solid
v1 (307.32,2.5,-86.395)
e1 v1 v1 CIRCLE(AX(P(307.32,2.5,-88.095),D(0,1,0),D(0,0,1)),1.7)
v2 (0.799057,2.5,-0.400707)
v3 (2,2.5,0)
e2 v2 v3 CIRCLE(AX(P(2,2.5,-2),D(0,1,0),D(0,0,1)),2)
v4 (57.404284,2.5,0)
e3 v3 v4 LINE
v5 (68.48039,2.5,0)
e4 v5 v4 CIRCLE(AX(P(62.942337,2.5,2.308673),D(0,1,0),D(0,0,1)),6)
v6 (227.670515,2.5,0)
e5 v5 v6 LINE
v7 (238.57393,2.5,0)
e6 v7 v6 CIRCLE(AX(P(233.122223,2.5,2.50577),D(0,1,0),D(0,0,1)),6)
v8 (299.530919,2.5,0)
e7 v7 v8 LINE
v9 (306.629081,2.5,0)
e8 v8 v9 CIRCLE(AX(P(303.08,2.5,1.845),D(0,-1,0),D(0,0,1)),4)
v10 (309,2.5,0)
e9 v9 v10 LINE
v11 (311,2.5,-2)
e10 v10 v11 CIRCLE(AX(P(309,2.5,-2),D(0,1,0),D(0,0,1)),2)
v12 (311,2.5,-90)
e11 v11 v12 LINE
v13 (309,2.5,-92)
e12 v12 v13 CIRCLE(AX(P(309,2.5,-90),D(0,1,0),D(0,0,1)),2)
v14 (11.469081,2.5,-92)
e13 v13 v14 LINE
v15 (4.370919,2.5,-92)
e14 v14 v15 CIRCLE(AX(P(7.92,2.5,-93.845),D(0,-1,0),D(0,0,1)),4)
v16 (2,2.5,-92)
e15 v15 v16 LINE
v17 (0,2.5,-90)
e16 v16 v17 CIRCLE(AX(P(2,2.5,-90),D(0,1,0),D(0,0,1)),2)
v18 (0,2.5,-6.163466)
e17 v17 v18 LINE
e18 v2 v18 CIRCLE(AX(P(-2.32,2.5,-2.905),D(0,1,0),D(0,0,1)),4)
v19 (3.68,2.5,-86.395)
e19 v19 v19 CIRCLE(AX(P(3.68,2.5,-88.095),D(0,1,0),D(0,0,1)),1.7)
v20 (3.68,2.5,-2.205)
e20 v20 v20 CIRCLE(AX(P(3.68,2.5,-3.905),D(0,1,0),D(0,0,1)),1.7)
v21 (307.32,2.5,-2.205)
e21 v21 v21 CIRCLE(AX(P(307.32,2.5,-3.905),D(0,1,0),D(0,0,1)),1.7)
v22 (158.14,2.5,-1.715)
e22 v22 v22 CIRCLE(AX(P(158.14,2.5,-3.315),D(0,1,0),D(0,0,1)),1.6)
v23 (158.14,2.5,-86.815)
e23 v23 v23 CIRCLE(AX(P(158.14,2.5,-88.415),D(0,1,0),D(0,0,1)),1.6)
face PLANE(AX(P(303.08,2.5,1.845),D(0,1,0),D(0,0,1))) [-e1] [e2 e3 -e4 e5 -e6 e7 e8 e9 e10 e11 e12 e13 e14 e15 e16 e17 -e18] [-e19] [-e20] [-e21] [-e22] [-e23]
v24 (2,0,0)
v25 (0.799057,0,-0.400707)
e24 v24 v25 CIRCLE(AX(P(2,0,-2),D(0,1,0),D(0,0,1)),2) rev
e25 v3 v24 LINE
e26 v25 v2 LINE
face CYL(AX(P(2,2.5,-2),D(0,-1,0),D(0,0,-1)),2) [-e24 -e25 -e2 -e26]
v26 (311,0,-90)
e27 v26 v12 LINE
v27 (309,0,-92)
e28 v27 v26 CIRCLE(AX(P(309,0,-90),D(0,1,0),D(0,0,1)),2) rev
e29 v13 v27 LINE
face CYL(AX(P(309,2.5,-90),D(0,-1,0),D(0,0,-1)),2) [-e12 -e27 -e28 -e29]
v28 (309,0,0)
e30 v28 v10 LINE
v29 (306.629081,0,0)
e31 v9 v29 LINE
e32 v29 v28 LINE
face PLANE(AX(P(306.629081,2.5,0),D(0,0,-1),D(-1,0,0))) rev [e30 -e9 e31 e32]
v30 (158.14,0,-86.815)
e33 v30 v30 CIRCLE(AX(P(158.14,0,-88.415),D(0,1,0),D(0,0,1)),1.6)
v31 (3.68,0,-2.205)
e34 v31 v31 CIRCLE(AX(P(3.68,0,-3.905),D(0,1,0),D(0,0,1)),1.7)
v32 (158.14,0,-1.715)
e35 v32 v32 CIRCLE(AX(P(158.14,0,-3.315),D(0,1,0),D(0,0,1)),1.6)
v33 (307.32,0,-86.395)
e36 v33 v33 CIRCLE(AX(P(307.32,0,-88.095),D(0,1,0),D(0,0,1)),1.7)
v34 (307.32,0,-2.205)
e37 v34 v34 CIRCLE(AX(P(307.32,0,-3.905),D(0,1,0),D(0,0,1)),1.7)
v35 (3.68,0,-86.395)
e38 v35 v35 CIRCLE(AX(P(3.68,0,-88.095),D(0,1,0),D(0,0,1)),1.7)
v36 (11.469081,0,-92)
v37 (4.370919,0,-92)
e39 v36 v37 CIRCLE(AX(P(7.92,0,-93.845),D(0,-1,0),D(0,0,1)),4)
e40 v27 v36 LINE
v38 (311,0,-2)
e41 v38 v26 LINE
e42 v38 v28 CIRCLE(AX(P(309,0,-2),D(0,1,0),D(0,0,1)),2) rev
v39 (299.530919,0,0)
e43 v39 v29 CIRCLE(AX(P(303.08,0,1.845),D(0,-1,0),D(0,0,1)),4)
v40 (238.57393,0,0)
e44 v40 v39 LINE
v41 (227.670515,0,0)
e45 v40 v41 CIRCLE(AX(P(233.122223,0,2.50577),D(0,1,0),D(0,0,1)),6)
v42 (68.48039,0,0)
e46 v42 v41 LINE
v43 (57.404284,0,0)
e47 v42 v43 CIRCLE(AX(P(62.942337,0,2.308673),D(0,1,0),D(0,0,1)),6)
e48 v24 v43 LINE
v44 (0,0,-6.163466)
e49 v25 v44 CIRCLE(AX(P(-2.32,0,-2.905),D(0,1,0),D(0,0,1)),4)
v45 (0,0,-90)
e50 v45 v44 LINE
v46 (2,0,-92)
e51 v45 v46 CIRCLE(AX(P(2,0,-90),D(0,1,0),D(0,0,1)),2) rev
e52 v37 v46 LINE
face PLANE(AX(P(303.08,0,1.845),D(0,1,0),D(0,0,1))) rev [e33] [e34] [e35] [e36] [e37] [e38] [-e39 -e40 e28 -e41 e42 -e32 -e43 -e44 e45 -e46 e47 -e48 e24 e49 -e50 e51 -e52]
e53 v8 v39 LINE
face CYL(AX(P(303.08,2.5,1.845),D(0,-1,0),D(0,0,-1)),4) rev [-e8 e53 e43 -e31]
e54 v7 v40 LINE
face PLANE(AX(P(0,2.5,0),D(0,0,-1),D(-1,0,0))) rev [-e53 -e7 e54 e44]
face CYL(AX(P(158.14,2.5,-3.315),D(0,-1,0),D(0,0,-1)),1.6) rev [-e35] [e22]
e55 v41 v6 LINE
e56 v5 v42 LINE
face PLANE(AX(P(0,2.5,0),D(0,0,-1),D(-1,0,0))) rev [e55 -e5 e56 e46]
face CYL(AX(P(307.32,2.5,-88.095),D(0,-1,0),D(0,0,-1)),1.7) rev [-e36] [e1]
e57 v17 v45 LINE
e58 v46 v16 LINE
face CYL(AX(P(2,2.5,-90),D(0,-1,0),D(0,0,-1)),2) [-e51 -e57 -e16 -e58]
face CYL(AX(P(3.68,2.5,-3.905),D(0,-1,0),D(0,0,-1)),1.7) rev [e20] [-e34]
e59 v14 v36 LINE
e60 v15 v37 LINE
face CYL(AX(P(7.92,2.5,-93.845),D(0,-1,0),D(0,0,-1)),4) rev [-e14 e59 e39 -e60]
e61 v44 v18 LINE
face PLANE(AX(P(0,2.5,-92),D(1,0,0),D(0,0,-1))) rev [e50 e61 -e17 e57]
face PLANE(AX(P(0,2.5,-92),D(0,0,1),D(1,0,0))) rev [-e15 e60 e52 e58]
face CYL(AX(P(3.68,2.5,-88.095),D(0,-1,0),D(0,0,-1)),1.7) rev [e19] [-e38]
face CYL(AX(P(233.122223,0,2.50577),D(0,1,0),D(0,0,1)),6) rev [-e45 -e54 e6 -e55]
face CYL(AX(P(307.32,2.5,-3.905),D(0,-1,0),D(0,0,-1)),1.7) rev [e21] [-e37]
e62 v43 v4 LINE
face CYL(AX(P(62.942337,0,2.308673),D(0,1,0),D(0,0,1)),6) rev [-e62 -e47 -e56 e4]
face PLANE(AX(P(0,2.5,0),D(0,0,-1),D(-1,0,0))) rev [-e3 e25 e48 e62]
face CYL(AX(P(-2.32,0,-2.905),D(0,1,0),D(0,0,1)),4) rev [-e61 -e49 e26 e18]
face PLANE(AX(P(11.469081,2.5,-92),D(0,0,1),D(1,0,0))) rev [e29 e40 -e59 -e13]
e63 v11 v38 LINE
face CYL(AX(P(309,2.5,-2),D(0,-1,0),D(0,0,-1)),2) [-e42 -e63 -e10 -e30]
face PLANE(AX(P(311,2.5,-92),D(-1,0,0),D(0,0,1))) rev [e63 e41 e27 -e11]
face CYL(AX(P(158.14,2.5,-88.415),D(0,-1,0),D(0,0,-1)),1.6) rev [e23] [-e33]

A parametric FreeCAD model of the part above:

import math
import FreeCAD as App
import Part
import Sketcher
from FreeCAD import Vector


def edges_at(feature, points):
    """Names of the edges that pass closest to the given points."""
    edges = feature.Shape.Edges
    near = lambda p: min(range(len(edges)), key=lambda i: edges[i].distToShape(Part.Vertex(*p))[0])
    return sorted({f"Edge{near(p) + 1}" for p in points})

doc = App.newDocument("Part")
params = doc.addObject("Spreadsheet::Sheet", "Params")
for row, (alias, value) in enumerate([
    ("sketch1_radius", "4 mm"),
    ("sketch1_diameter", "3.4 mm"),
    ("sketch1_diameter2", "3.2 mm"),
    ("sketch1_height", "92 mm"),
    ("pad1_length", "2.5 mm"),
    ("fillet_radius", "2 mm"),
    ("sketch2_diameter", "8 mm"),
    ("sketch3_diameter", "12 mm"),
], start=1):
    params.set(f"A{row}", alias)
    params.set(f"B{row}", "=" + value)
    params.setAlias(f"B{row}", alias)

body = doc.addObject("PartDesign::Body", "Body")

# Sketch on XZ plane
sketch1 = doc.addObject("Sketcher::SketchObject", "Sketch")
body.addObject(sketch1)
sketch1.AttachmentSupport = (doc.XZ_Plane, [""])
sketch1.MapMode = "FlatFace"
sketch1.addGeometry([
    Part.LineSegment(Vector(4.4, -92, 0), Vector(0, -92, 0)),  # 0
    Part.LineSegment(Vector(0, -92, 0), Vector(0, 0, 0)),  # 1
    Part.LineSegment(Vector(0, 0, 0), Vector(299.5, 0, 0)),  # 2
    Part.ArcOfCircle(Part.Circle(Vector(303.1, 1.8, 0), Vector(0, 0, 1), 4), math.radians(-153), math.radians(-27)),  # 3
    Part.LineSegment(Vector(306.6, 0, 0), Vector(311, 0, 0)),  # 4
    Part.LineSegment(Vector(311, 0, 0), Vector(311, -92, 0)),  # 5
    Part.LineSegment(Vector(311, -92, 0), Vector(11.5, -92, 0)),  # 6
    Part.ArcOfCircle(Part.Circle(Vector(7.9, -93.8, 0), Vector(0, 0, 1), 4), math.radians(27), math.radians(153)),  # 7
    Part.Circle(Vector(307.3, -3.9, 0), Vector(0, 0, 1), 1.7),  # 8
    Part.Circle(Vector(158.1, -3.3, 0), Vector(0, 0, 1), 1.6),  # 9
    Part.Circle(Vector(3.7, -3.9, 0), Vector(0, 0, 1), 1.7),  # 10
    Part.Circle(Vector(307.3, -88.1, 0), Vector(0, 0, 1), 1.7),  # 11
    Part.Circle(Vector(158.1, -88.4, 0), Vector(0, 0, 1), 1.6),  # 12
    Part.Circle(Vector(3.7, -88.1, 0), Vector(0, 0, 1), 1.7),  # 13
], False)
sketch1.addConstraint([
    Sketcher.Constraint("Coincident", 0, 2, 1, 1),
    Sketcher.Constraint("Coincident", 1, 2, 2, 1),
    Sketcher.Constraint("Coincident", 2, 2, 3, 1),
    Sketcher.Constraint("Coincident", 3, 2, 4, 1),
    Sketcher.Constraint("Coincident", 4, 2, 5, 1),
    Sketcher.Constraint("Coincident", 5, 2, 6, 1),
    Sketcher.Constraint("Coincident", 6, 2, 7, 1),
    Sketcher.Constraint("Coincident", 7, 2, 0, 1),
    Sketcher.Constraint("Horizontal", 0),
    Sketcher.Constraint("Vertical", 1),
    Sketcher.Constraint("Horizontal", 2),
    Sketcher.Constraint("Horizontal", 4),
    Sketcher.Constraint("Vertical", 5),
    Sketcher.Constraint("Horizontal", 6),
    Sketcher.Constraint("Coincident", 1, 2, -1, 1),
    Sketcher.Constraint("Equal", 3, 7),
    Sketcher.Constraint("Equal", 8, 10),
    Sketcher.Constraint("Equal", 10, 11),
    Sketcher.Constraint("Equal", 9, 12),
    Sketcher.Constraint("Equal", 11, 13),
    Sketcher.Constraint("PointOnObject", 3, 2, -1),
    Sketcher.Constraint("Horizontal", 8, 3, 10, 3),
    Sketcher.Constraint("Horizontal", 11, 3, 13, 3),
    Sketcher.Constraint("Horizontal", 0, 2, 5, 2),
    Sketcher.Constraint("Vertical", 8, 3, 11, 3),
    Sketcher.Constraint("Vertical", 9, 3, 12, 3),
    Sketcher.Constraint("Vertical", 10, 3, 13, 3),
    Sketcher.Constraint("Equal", 0, 4),
    Sketcher.Constraint("Equal", 2, 6),
    Sketcher.Constraint("Radius", 3, 4.0),
    Sketcher.Constraint("Diameter", 8, 3.4),
    Sketcher.Constraint("Diameter", 9, 3.2),
    Sketcher.Constraint("DistanceY", 1, 1, 1, 2, 92.0),
    Sketcher.Constraint("DistanceX", -1, 1, 4, 2, 311.0),
    Sketcher.Constraint("DistanceX", 7, 3, 8, 3, 299.4),
    Sketcher.Constraint("DistanceX", 10, 3, 3, 3, 299.4),
    Sketcher.Constraint("DistanceY", 12, 3, 9, 3, 85.1),
    Sketcher.Constraint("DistanceX", -1, 1, 3, 3, 303.08),
    Sketcher.Constraint("DistanceX", -1, 1, 9, 3, 158.14),
    Sketcher.Constraint("DistanceY", 7, 3, 3, 3, 95.69),
    Sketcher.Constraint("DistanceY", 8, 3, 3, 3, 5.75),
    Sketcher.Constraint("DistanceY", 9, 3, 3, 3, 5.16),
    Sketcher.Constraint("DistanceY", 11, 3, 8, 3, 84.19),
])
sketch1.setExpression("Constraints[29]", "Params.sketch1_radius")
sketch1.setExpression("Constraints[30]", "Params.sketch1_diameter")
sketch1.setExpression("Constraints[31]", "Params.sketch1_diameter2")
sketch1.setExpression("Constraints[32]", "Params.sketch1_height")
pad1 = doc.addObject("PartDesign::Pad", "Pad")
body.addObject(pad1)
pad1.Profile = sketch1
pad1.setExpression("Length", "Params.pad1_length")
pad1.Reversed = True
doc.recompute()

fillet = doc.addObject("PartDesign::Fillet", "Fillet")
body.addObject(fillet)
fillet.Base = (pad1, edges_at(pad1, [
    (0, 1.25, -92),
    (311, 1.25, -92),
    (311, 1.25, 0),
    (0, 1.25, 0),
]))
fillet.setExpression("Radius", "Params.fillet_radius")

# Sketch on XZ plane
sketch2 = doc.addObject("Sketcher::SketchObject", "Sketch001")
body.addObject(sketch2)
sketch2.AttachmentSupport = (doc.XZ_Plane, [""])
sketch2.MapMode = "FlatFace"
sketch2.AttachmentOffset = App.Placement(Vector(0, 0, -2.5), App.Rotation())
sketch2.addGeometry(Part.Circle(Vector(-2.3, -2.9, 0), Vector(0, 0, 1), 4), False)
sketch2.addConstraint([
    Sketcher.Constraint("Diameter", 0, 8.0),
    Sketcher.Constraint("DistanceX", 0, 3, -1, 1, 2.32),
    Sketcher.Constraint("DistanceY", 0, 3, -1, 1, 2.905),
])
sketch2.setExpression("Constraints[0]", "Params.sketch2_diameter")
pocket1 = doc.addObject("PartDesign::Pocket", "Pocket")
body.addObject(pocket1)
pocket1.Profile = sketch2
pocket1.Type = "ThroughAll"
pocket1.Reversed = True

# Sketch on XZ plane
sketch3 = doc.addObject("Sketcher::SketchObject", "Sketch002")
body.addObject(sketch3)
sketch3.AttachmentSupport = (doc.XZ_Plane, [""])
sketch3.MapMode = "FlatFace"
sketch3.AttachmentOffset = App.Placement(Vector(0, 0, -2.5), App.Rotation())
sketch3.addGeometry([
    Part.Circle(Vector(233, 3, 0), Vector(0, 0, 1), 6),
    Part.Circle(Vector(63, 2, 0), Vector(0, 0, 1), 6),
], False)
sketch3.addConstraint([
    Sketcher.Constraint("Equal", 0, 1),
    Sketcher.Constraint("Diameter", 0, 12.0),
    Sketcher.Constraint("DistanceY", -1, 1, 0, 3, 2.50577),
    Sketcher.Constraint("DistanceX", -1, 1, 0, 3, 233.122223),
    Sketcher.Constraint("DistanceX", -1, 1, 1, 3, 62.942337),
    Sketcher.Constraint("DistanceY", -1, 1, 1, 3, 2.308673),
])
sketch3.setExpression("Constraints[1]", "Params.sketch3_diameter")
pocket2 = doc.addObject("PartDesign::Pocket", "Pocket001")
body.addObject(pocket2)
pocket2.Profile = sketch3
pocket2.Type = "ThroughAll"
pocket2.Reversed = True

doc.recompute()
